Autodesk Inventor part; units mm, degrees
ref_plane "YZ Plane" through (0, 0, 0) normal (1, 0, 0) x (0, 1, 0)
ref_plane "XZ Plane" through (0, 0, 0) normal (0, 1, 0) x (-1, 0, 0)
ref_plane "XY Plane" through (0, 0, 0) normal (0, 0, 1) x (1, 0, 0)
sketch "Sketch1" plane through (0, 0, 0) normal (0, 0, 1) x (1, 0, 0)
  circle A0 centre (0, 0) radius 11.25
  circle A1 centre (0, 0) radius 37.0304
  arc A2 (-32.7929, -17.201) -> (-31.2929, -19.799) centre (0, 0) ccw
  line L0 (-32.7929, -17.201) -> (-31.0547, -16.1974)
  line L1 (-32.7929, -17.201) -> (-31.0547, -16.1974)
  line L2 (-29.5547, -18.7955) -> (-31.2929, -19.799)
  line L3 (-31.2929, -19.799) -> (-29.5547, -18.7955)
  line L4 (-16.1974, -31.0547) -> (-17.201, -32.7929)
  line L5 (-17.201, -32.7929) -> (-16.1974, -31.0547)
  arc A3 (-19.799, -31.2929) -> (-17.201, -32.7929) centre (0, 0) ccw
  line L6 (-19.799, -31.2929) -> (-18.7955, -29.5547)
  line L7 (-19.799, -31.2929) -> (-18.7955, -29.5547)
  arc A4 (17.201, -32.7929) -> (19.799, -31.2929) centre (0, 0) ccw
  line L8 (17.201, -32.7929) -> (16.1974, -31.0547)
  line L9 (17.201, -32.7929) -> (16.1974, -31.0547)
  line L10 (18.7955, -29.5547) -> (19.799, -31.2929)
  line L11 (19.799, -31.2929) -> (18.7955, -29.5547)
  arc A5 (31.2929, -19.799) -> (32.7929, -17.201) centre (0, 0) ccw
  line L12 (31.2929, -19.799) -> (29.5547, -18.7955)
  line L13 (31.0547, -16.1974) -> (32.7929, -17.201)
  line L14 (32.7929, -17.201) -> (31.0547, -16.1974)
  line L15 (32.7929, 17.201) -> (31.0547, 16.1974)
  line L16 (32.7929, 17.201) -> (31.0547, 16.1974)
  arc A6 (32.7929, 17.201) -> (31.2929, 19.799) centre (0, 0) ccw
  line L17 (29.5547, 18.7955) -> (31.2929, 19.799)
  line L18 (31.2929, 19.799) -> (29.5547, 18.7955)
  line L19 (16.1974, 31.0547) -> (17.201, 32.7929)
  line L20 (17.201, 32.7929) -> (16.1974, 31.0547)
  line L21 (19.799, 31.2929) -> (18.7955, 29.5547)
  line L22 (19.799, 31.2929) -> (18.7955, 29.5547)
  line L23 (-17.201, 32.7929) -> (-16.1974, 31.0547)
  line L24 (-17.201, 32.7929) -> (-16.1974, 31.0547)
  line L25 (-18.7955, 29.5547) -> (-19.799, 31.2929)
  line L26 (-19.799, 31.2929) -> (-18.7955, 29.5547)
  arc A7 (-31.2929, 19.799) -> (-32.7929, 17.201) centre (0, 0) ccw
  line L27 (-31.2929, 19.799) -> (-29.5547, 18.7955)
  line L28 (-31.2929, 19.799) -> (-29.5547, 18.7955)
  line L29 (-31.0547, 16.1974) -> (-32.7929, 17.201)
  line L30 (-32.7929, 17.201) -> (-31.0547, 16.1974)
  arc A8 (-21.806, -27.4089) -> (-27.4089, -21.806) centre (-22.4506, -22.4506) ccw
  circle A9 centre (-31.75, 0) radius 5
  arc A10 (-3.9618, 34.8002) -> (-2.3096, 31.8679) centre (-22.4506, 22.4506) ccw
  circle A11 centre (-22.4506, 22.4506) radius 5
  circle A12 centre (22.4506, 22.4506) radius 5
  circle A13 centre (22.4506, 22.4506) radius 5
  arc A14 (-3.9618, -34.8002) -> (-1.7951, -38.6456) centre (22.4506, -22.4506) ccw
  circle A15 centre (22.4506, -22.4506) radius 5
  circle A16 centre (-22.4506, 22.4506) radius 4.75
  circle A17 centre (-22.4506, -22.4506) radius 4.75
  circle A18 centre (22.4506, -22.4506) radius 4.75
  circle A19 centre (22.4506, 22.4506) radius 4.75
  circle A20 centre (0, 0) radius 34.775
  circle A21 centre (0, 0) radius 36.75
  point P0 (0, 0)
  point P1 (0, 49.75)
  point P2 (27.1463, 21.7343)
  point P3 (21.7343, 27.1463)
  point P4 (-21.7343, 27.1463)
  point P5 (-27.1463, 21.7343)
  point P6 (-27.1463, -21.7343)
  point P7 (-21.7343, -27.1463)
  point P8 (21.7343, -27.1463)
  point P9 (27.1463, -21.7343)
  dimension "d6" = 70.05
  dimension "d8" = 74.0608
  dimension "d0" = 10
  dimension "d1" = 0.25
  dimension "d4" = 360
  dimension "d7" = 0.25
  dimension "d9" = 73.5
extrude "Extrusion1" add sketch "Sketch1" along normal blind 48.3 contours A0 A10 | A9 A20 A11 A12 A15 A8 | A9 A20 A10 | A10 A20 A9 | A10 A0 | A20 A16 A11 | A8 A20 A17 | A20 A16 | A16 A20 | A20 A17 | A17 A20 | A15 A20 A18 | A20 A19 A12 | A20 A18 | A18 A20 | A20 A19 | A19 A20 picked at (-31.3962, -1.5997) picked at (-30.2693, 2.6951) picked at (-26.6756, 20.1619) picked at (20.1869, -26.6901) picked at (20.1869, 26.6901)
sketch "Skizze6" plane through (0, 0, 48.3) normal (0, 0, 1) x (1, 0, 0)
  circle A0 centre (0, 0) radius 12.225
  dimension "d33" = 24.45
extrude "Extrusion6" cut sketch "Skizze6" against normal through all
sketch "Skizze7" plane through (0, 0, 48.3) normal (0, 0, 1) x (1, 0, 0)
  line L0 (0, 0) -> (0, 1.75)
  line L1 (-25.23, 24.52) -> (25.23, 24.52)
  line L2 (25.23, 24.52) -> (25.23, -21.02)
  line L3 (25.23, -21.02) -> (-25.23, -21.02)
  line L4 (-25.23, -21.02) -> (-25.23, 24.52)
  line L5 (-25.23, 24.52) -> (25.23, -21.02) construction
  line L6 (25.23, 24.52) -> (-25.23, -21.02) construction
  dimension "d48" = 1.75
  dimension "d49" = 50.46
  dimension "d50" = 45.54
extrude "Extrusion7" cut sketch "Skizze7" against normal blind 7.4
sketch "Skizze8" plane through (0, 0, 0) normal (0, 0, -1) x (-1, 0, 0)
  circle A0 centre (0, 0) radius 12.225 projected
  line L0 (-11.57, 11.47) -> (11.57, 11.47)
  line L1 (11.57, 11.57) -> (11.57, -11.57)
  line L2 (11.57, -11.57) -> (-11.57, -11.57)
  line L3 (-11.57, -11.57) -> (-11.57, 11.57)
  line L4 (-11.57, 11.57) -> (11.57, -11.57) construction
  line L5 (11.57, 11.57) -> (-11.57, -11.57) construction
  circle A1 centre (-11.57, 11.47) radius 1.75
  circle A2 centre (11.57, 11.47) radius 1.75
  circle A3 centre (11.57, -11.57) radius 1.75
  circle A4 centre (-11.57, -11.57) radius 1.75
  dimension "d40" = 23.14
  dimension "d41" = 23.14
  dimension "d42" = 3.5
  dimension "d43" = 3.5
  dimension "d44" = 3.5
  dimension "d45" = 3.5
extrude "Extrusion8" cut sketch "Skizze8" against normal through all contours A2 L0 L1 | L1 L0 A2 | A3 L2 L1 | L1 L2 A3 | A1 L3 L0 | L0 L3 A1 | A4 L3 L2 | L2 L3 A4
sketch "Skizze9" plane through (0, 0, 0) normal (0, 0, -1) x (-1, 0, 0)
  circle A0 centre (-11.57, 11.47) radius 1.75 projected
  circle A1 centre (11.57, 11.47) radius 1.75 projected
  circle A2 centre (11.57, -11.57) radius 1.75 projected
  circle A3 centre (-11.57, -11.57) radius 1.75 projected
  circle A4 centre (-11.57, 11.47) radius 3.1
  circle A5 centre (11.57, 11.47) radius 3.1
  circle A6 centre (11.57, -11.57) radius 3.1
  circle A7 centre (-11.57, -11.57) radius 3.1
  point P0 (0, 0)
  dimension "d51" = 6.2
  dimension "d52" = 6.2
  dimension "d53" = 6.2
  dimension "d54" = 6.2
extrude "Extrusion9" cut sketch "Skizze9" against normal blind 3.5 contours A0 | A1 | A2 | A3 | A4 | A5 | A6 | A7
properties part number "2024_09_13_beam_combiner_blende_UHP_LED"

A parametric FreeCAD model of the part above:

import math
import FreeCAD as App
import Part
import Sketcher
from FreeCAD import Vector
Q = App.Units.Quantity


def add_polygon(sketch, points):
    """Adds a closed chain of lines whose ends are joined by coincident constraints."""
    first, n = sketch.GeometryCount, len(points)
    for a, b in zip(points, points[1:] + points[:1]):
        sketch.addGeometry(Part.LineSegment(App.Vector(*a, 0), App.Vector(*b, 0)), False)
    for i in range(n):
        sketch.addConstraint(Sketcher.Constraint("Coincident", first + i, 2, first + (i + 1) % n, 1))

doc = App.newDocument("Part")
params = doc.addObject("Spreadsheet::Sheet", "Params")
for row, (alias, value) in enumerate([
    ("sketch1_radius", "4.75 mm"),
    ("pad1_length", "48.3 mm"),
    ("sketch2_diameter", "24.45 mm"),
    ("sketch3_width", "50.46 mm"),
    ("sketch3_height", "45.54 mm"),
    ("pocket2_length", "7.4 mm"),
    ("sketch4_diameter", "3.5 mm"),
    ("sketch5_diameter", "6.2 mm"),
    ("pocket4_length", "3.5 mm"),
], start=1):
    params.set(f"A{row}", alias)
    params.set(f"B{row}", "=" + value)
    params.setAlias(f"B{row}", alias)

body = doc.addObject("PartDesign::Body", "Body")

# Sketch on XY plane
sketch1 = body.newObject("Sketcher::SketchObject", "Sketch")
sketch1.AttachmentSupport = (doc.getObject("XY_Plane"), [""])
sketch1.MapMode = "FlatFace"
sketch1.addGeometry([
    Part.ArcOfCircle(Part.Circle(Vector(-22.4506, -22.4506, 0), Vector(0, 0, 1), 4.75), math.radians(171.326778), math.radians(278.673222)),  # 0
    Part.ArcOfCircle(Part.Circle(Vector(0, 0, 0), Vector(0, 0, 1), 34.775), math.radians(-128.682041), math.radians(-51.317959)),  # 1
    Part.ArcOfCircle(Part.Circle(Vector(22.4506, -22.4506, 0), Vector(0, 0, 1), 4.75), math.radians(-98.673222), math.radians(8.673222)),  # 2
    Part.ArcOfCircle(Part.Circle(Vector(0, 0, 0), Vector(0, 0, 1), 34.775), math.radians(-38.682041), math.radians(38.682041)),  # 3
    Part.ArcOfCircle(Part.Circle(Vector(22.4506, 22.4506, 0), Vector(0, 0, 1), 4.75), math.radians(-8.673222), math.radians(98.673222)),  # 4
    Part.ArcOfCircle(Part.Circle(Vector(0, 0, 0), Vector(0, 0, 1), 34.775), math.radians(51.317959), math.radians(128.682041)),  # 5
    Part.ArcOfCircle(Part.Circle(Vector(-22.4506, 22.4506, 0), Vector(0, 0, 1), 4.75), math.radians(81.326778), math.radians(188.673222)),  # 6
    Part.ArcOfCircle(Part.Circle(Vector(0, 0, 0), Vector(0, 0, 1), 34.775), math.radians(141.317959), math.radians(218.682041)),  # 7
], False)
sketch1.addConstraint([
    Sketcher.Constraint("Coincident", 0, 2, 1, 1),
    Sketcher.Constraint("Coincident", 1, 2, 2, 1),
    Sketcher.Constraint("Coincident", 2, 2, 3, 1),
    Sketcher.Constraint("Coincident", 3, 2, 4, 1),
    Sketcher.Constraint("Coincident", 4, 2, 5, 1),
    Sketcher.Constraint("Coincident", 5, 2, 6, 1),
    Sketcher.Constraint("Coincident", 6, 2, 7, 1),
    Sketcher.Constraint("Coincident", 7, 2, 0, 1),
    Sketcher.Constraint("Coincident", 1, 3, -1, 1),
    Sketcher.Constraint("Coincident", 3, 3, -1, 1),
    Sketcher.Constraint("Coincident", 5, 3, -1, 1),
    Sketcher.Constraint("Coincident", 7, 3, -1, 1),
    Sketcher.Constraint("Equal", 0, 2),
    Sketcher.Constraint("Equal", 1, 3),
    Sketcher.Constraint("Equal", 2, 4),
    Sketcher.Constraint("Equal", 3, 5),
    Sketcher.Constraint("Equal", 4, 6),
    Sketcher.Constraint("Equal", 5, 7),
    Sketcher.Constraint("Symmetric", 0, 3, 4, 3, -1, 1),
    Sketcher.Constraint("Symmetric", 2, 3, 6, 3, -1, 1),
    Sketcher.Constraint("Symmetric", 0, 3, 2, 3, -2),
    Sketcher.Constraint("Radius", 0, Q("4.75 mm")),
    Sketcher.Constraint("Radius", 1, Q("34.775 mm")),
    Sketcher.Constraint("DistanceX", 1, 2, 2, 2, Q("5.412 mm")),
    Sketcher.Constraint("DistanceY", 1, 2, 2, 2, Q("5.412 mm")),
])
sketch1.setExpression("Constraints[21]", "Params.sketch1_radius")
pad1 = body.newObject("PartDesign::Pad", "Pad")
pad1.Profile = sketch1
pad1.setExpression("Length", "Params.pad1_length")

# Sketch on XY plane
sketch2 = body.newObject("Sketcher::SketchObject", "Sketch001")
sketch2.AttachmentSupport = (doc.getObject("XY_Plane"), [""])
sketch2.MapMode = "FlatFace"
sketch2.AttachmentOffset = App.Placement(Vector(0, 0, 48.3), App.Rotation())
sketch2.addGeometry(Part.Circle(Vector(0, 0, 0), Vector(0, 0, 1), 12.225), False)
sketch2.addConstraint([
    Sketcher.Constraint("Coincident", 0, 3, -1, 1),
    Sketcher.Constraint("Diameter", 0, Q("24.45 mm")),
])
sketch2.setExpression("Constraints[1]", "Params.sketch2_diameter")
pocket1 = body.newObject("PartDesign::Pocket", "Pocket")
pocket1.Profile = sketch2
pocket1.Type = "ThroughAll"

# Sketch on XY plane
sketch3 = body.newObject("Sketcher::SketchObject", "Sketch002")
sketch3.AttachmentSupport = (doc.getObject("XY_Plane"), [""])
sketch3.MapMode = "FlatFace"
sketch3.AttachmentOffset = App.Placement(Vector(0, 0, 48.3), App.Rotation())
add_polygon(sketch3, [(25.23, 24.52), (-25.23, 24.52), (-25.23, -21.02), (25.23, -21.02)])  # lines 0-3
sketch3.addConstraint([
    Sketcher.Constraint("Horizontal", 0),
    Sketcher.Constraint("Vertical", 1),
    Sketcher.Constraint("Horizontal", 2),
    Sketcher.Constraint("Vertical", 3),
    Sketcher.Constraint("DistanceX", 0, 2, 0, 1, Q("50.46 mm")),
    Sketcher.Constraint("DistanceY", 1, 2, 1, 1, Q("45.54 mm")),
    Sketcher.Constraint("DistanceX", 0, 2, -1, 1, Q("25.23 mm")),
    Sketcher.Constraint("DistanceY", -1, 1, 0, 2, Q("24.52 mm")),
])
sketch3.setExpression("Constraints[8]", "Params.sketch3_width")
sketch3.setExpression("Constraints[9]", "Params.sketch3_height")
pocket2 = body.newObject("PartDesign::Pocket", "Pocket001")
pocket2.Profile = sketch3
pocket2.setExpression("Length", "Params.pocket2_length")

# Sketch on XY plane
sketch4 = body.newObject("Sketcher::SketchObject", "Sketch003")
sketch4.AttachmentSupport = (doc.getObject("XY_Plane"), [""])
sketch4.MapMode = "FlatFace"
sketch4.addGeometry([
    Part.Circle(Vector(-11.57, 11.47, 0), Vector(0, 0, 1), 1.75),
    Part.Circle(Vector(-11.57, -11.57, 0), Vector(0, 0, 1), 1.75),
    Part.Circle(Vector(11.57, 11.47, 0), Vector(0, 0, 1), 1.75),
    Part.Circle(Vector(11.57, -11.57, 0), Vector(0, 0, 1), 1.75),
], False)
sketch4.addConstraint([
    Sketcher.Constraint("Equal", 0, 1),
    Sketcher.Constraint("Equal", 1, 2),
    Sketcher.Constraint("Equal", 2, 3),
    Sketcher.Constraint("Symmetric", 0, 3, 2, 3, -2),
    Sketcher.Constraint("Symmetric", 1, 3, 3, 3, -2),
    Sketcher.Constraint("Vertical", 0, 3, 1, 3),
    Sketcher.Constraint("Diameter", 0, Q("3.5 mm")),
    Sketcher.Constraint("DistanceX", 0, 3, 2, 3, Q("23.14 mm")),
    Sketcher.Constraint("DistanceY", -1, 1, 0, 3, Q("11.47 mm")),
    Sketcher.Constraint("DistanceY", 1, 3, -1, 1, Q("11.57 mm")),
])
sketch4.setExpression("Constraints[6]", "Params.sketch4_diameter")
pocket3 = body.newObject("PartDesign::Pocket", "Pocket002")
pocket3.Profile = sketch4
pocket3.Type = "ThroughAll"
pocket3.Reversed = True

# Sketch on XY plane
sketch5 = body.newObject("Sketcher::SketchObject", "Sketch004")
sketch5.AttachmentSupport = (doc.getObject("XY_Plane"), [""])
sketch5.MapMode = "FlatFace"
sketch5.addGeometry([
    Part.Circle(Vector(11.57, 11.47, 0), Vector(0, 0, 1), 3.1),
    Part.Circle(Vector(-11.57, 11.47, 0), Vector(0, 0, 1), 3.1),
    Part.Circle(Vector(-11.57, -11.57, 0), Vector(0, 0, 1), 3.1),
    Part.Circle(Vector(11.57, -11.57, 0), Vector(0, 0, 1), 3.1),
], False)
sketch5.addConstraint([
    Sketcher.Constraint("Equal", 0, 1),
    Sketcher.Constraint("Equal", 1, 2),
    Sketcher.Constraint("Equal", 2, 3),
    Sketcher.Constraint("Symmetric", 0, 3, 1, 3, -2),
    Sketcher.Constraint("Symmetric", 2, 3, 3, 3, -2),
    Sketcher.Constraint("Vertical", 1, 3, 2, 3),
    Sketcher.Constraint("Diameter", 0, Q("6.2 mm")),
    Sketcher.Constraint("DistanceX", -1, 1, 0, 3, Q("11.57 mm")),
    Sketcher.Constraint("DistanceY", -1, 1, 0, 3, Q("11.47 mm")),
    Sketcher.Constraint("DistanceY", 2, 3, -1, 1, Q("11.57 mm")),
])
sketch5.setExpression("Constraints[6]", "Params.sketch5_diameter")
pocket4 = body.newObject("PartDesign::Pocket", "Pocket003")
pocket4.Profile = sketch5
pocket4.setExpression("Length", "Params.pocket4_length")
pocket4.Reversed = True

doc.recompute()
